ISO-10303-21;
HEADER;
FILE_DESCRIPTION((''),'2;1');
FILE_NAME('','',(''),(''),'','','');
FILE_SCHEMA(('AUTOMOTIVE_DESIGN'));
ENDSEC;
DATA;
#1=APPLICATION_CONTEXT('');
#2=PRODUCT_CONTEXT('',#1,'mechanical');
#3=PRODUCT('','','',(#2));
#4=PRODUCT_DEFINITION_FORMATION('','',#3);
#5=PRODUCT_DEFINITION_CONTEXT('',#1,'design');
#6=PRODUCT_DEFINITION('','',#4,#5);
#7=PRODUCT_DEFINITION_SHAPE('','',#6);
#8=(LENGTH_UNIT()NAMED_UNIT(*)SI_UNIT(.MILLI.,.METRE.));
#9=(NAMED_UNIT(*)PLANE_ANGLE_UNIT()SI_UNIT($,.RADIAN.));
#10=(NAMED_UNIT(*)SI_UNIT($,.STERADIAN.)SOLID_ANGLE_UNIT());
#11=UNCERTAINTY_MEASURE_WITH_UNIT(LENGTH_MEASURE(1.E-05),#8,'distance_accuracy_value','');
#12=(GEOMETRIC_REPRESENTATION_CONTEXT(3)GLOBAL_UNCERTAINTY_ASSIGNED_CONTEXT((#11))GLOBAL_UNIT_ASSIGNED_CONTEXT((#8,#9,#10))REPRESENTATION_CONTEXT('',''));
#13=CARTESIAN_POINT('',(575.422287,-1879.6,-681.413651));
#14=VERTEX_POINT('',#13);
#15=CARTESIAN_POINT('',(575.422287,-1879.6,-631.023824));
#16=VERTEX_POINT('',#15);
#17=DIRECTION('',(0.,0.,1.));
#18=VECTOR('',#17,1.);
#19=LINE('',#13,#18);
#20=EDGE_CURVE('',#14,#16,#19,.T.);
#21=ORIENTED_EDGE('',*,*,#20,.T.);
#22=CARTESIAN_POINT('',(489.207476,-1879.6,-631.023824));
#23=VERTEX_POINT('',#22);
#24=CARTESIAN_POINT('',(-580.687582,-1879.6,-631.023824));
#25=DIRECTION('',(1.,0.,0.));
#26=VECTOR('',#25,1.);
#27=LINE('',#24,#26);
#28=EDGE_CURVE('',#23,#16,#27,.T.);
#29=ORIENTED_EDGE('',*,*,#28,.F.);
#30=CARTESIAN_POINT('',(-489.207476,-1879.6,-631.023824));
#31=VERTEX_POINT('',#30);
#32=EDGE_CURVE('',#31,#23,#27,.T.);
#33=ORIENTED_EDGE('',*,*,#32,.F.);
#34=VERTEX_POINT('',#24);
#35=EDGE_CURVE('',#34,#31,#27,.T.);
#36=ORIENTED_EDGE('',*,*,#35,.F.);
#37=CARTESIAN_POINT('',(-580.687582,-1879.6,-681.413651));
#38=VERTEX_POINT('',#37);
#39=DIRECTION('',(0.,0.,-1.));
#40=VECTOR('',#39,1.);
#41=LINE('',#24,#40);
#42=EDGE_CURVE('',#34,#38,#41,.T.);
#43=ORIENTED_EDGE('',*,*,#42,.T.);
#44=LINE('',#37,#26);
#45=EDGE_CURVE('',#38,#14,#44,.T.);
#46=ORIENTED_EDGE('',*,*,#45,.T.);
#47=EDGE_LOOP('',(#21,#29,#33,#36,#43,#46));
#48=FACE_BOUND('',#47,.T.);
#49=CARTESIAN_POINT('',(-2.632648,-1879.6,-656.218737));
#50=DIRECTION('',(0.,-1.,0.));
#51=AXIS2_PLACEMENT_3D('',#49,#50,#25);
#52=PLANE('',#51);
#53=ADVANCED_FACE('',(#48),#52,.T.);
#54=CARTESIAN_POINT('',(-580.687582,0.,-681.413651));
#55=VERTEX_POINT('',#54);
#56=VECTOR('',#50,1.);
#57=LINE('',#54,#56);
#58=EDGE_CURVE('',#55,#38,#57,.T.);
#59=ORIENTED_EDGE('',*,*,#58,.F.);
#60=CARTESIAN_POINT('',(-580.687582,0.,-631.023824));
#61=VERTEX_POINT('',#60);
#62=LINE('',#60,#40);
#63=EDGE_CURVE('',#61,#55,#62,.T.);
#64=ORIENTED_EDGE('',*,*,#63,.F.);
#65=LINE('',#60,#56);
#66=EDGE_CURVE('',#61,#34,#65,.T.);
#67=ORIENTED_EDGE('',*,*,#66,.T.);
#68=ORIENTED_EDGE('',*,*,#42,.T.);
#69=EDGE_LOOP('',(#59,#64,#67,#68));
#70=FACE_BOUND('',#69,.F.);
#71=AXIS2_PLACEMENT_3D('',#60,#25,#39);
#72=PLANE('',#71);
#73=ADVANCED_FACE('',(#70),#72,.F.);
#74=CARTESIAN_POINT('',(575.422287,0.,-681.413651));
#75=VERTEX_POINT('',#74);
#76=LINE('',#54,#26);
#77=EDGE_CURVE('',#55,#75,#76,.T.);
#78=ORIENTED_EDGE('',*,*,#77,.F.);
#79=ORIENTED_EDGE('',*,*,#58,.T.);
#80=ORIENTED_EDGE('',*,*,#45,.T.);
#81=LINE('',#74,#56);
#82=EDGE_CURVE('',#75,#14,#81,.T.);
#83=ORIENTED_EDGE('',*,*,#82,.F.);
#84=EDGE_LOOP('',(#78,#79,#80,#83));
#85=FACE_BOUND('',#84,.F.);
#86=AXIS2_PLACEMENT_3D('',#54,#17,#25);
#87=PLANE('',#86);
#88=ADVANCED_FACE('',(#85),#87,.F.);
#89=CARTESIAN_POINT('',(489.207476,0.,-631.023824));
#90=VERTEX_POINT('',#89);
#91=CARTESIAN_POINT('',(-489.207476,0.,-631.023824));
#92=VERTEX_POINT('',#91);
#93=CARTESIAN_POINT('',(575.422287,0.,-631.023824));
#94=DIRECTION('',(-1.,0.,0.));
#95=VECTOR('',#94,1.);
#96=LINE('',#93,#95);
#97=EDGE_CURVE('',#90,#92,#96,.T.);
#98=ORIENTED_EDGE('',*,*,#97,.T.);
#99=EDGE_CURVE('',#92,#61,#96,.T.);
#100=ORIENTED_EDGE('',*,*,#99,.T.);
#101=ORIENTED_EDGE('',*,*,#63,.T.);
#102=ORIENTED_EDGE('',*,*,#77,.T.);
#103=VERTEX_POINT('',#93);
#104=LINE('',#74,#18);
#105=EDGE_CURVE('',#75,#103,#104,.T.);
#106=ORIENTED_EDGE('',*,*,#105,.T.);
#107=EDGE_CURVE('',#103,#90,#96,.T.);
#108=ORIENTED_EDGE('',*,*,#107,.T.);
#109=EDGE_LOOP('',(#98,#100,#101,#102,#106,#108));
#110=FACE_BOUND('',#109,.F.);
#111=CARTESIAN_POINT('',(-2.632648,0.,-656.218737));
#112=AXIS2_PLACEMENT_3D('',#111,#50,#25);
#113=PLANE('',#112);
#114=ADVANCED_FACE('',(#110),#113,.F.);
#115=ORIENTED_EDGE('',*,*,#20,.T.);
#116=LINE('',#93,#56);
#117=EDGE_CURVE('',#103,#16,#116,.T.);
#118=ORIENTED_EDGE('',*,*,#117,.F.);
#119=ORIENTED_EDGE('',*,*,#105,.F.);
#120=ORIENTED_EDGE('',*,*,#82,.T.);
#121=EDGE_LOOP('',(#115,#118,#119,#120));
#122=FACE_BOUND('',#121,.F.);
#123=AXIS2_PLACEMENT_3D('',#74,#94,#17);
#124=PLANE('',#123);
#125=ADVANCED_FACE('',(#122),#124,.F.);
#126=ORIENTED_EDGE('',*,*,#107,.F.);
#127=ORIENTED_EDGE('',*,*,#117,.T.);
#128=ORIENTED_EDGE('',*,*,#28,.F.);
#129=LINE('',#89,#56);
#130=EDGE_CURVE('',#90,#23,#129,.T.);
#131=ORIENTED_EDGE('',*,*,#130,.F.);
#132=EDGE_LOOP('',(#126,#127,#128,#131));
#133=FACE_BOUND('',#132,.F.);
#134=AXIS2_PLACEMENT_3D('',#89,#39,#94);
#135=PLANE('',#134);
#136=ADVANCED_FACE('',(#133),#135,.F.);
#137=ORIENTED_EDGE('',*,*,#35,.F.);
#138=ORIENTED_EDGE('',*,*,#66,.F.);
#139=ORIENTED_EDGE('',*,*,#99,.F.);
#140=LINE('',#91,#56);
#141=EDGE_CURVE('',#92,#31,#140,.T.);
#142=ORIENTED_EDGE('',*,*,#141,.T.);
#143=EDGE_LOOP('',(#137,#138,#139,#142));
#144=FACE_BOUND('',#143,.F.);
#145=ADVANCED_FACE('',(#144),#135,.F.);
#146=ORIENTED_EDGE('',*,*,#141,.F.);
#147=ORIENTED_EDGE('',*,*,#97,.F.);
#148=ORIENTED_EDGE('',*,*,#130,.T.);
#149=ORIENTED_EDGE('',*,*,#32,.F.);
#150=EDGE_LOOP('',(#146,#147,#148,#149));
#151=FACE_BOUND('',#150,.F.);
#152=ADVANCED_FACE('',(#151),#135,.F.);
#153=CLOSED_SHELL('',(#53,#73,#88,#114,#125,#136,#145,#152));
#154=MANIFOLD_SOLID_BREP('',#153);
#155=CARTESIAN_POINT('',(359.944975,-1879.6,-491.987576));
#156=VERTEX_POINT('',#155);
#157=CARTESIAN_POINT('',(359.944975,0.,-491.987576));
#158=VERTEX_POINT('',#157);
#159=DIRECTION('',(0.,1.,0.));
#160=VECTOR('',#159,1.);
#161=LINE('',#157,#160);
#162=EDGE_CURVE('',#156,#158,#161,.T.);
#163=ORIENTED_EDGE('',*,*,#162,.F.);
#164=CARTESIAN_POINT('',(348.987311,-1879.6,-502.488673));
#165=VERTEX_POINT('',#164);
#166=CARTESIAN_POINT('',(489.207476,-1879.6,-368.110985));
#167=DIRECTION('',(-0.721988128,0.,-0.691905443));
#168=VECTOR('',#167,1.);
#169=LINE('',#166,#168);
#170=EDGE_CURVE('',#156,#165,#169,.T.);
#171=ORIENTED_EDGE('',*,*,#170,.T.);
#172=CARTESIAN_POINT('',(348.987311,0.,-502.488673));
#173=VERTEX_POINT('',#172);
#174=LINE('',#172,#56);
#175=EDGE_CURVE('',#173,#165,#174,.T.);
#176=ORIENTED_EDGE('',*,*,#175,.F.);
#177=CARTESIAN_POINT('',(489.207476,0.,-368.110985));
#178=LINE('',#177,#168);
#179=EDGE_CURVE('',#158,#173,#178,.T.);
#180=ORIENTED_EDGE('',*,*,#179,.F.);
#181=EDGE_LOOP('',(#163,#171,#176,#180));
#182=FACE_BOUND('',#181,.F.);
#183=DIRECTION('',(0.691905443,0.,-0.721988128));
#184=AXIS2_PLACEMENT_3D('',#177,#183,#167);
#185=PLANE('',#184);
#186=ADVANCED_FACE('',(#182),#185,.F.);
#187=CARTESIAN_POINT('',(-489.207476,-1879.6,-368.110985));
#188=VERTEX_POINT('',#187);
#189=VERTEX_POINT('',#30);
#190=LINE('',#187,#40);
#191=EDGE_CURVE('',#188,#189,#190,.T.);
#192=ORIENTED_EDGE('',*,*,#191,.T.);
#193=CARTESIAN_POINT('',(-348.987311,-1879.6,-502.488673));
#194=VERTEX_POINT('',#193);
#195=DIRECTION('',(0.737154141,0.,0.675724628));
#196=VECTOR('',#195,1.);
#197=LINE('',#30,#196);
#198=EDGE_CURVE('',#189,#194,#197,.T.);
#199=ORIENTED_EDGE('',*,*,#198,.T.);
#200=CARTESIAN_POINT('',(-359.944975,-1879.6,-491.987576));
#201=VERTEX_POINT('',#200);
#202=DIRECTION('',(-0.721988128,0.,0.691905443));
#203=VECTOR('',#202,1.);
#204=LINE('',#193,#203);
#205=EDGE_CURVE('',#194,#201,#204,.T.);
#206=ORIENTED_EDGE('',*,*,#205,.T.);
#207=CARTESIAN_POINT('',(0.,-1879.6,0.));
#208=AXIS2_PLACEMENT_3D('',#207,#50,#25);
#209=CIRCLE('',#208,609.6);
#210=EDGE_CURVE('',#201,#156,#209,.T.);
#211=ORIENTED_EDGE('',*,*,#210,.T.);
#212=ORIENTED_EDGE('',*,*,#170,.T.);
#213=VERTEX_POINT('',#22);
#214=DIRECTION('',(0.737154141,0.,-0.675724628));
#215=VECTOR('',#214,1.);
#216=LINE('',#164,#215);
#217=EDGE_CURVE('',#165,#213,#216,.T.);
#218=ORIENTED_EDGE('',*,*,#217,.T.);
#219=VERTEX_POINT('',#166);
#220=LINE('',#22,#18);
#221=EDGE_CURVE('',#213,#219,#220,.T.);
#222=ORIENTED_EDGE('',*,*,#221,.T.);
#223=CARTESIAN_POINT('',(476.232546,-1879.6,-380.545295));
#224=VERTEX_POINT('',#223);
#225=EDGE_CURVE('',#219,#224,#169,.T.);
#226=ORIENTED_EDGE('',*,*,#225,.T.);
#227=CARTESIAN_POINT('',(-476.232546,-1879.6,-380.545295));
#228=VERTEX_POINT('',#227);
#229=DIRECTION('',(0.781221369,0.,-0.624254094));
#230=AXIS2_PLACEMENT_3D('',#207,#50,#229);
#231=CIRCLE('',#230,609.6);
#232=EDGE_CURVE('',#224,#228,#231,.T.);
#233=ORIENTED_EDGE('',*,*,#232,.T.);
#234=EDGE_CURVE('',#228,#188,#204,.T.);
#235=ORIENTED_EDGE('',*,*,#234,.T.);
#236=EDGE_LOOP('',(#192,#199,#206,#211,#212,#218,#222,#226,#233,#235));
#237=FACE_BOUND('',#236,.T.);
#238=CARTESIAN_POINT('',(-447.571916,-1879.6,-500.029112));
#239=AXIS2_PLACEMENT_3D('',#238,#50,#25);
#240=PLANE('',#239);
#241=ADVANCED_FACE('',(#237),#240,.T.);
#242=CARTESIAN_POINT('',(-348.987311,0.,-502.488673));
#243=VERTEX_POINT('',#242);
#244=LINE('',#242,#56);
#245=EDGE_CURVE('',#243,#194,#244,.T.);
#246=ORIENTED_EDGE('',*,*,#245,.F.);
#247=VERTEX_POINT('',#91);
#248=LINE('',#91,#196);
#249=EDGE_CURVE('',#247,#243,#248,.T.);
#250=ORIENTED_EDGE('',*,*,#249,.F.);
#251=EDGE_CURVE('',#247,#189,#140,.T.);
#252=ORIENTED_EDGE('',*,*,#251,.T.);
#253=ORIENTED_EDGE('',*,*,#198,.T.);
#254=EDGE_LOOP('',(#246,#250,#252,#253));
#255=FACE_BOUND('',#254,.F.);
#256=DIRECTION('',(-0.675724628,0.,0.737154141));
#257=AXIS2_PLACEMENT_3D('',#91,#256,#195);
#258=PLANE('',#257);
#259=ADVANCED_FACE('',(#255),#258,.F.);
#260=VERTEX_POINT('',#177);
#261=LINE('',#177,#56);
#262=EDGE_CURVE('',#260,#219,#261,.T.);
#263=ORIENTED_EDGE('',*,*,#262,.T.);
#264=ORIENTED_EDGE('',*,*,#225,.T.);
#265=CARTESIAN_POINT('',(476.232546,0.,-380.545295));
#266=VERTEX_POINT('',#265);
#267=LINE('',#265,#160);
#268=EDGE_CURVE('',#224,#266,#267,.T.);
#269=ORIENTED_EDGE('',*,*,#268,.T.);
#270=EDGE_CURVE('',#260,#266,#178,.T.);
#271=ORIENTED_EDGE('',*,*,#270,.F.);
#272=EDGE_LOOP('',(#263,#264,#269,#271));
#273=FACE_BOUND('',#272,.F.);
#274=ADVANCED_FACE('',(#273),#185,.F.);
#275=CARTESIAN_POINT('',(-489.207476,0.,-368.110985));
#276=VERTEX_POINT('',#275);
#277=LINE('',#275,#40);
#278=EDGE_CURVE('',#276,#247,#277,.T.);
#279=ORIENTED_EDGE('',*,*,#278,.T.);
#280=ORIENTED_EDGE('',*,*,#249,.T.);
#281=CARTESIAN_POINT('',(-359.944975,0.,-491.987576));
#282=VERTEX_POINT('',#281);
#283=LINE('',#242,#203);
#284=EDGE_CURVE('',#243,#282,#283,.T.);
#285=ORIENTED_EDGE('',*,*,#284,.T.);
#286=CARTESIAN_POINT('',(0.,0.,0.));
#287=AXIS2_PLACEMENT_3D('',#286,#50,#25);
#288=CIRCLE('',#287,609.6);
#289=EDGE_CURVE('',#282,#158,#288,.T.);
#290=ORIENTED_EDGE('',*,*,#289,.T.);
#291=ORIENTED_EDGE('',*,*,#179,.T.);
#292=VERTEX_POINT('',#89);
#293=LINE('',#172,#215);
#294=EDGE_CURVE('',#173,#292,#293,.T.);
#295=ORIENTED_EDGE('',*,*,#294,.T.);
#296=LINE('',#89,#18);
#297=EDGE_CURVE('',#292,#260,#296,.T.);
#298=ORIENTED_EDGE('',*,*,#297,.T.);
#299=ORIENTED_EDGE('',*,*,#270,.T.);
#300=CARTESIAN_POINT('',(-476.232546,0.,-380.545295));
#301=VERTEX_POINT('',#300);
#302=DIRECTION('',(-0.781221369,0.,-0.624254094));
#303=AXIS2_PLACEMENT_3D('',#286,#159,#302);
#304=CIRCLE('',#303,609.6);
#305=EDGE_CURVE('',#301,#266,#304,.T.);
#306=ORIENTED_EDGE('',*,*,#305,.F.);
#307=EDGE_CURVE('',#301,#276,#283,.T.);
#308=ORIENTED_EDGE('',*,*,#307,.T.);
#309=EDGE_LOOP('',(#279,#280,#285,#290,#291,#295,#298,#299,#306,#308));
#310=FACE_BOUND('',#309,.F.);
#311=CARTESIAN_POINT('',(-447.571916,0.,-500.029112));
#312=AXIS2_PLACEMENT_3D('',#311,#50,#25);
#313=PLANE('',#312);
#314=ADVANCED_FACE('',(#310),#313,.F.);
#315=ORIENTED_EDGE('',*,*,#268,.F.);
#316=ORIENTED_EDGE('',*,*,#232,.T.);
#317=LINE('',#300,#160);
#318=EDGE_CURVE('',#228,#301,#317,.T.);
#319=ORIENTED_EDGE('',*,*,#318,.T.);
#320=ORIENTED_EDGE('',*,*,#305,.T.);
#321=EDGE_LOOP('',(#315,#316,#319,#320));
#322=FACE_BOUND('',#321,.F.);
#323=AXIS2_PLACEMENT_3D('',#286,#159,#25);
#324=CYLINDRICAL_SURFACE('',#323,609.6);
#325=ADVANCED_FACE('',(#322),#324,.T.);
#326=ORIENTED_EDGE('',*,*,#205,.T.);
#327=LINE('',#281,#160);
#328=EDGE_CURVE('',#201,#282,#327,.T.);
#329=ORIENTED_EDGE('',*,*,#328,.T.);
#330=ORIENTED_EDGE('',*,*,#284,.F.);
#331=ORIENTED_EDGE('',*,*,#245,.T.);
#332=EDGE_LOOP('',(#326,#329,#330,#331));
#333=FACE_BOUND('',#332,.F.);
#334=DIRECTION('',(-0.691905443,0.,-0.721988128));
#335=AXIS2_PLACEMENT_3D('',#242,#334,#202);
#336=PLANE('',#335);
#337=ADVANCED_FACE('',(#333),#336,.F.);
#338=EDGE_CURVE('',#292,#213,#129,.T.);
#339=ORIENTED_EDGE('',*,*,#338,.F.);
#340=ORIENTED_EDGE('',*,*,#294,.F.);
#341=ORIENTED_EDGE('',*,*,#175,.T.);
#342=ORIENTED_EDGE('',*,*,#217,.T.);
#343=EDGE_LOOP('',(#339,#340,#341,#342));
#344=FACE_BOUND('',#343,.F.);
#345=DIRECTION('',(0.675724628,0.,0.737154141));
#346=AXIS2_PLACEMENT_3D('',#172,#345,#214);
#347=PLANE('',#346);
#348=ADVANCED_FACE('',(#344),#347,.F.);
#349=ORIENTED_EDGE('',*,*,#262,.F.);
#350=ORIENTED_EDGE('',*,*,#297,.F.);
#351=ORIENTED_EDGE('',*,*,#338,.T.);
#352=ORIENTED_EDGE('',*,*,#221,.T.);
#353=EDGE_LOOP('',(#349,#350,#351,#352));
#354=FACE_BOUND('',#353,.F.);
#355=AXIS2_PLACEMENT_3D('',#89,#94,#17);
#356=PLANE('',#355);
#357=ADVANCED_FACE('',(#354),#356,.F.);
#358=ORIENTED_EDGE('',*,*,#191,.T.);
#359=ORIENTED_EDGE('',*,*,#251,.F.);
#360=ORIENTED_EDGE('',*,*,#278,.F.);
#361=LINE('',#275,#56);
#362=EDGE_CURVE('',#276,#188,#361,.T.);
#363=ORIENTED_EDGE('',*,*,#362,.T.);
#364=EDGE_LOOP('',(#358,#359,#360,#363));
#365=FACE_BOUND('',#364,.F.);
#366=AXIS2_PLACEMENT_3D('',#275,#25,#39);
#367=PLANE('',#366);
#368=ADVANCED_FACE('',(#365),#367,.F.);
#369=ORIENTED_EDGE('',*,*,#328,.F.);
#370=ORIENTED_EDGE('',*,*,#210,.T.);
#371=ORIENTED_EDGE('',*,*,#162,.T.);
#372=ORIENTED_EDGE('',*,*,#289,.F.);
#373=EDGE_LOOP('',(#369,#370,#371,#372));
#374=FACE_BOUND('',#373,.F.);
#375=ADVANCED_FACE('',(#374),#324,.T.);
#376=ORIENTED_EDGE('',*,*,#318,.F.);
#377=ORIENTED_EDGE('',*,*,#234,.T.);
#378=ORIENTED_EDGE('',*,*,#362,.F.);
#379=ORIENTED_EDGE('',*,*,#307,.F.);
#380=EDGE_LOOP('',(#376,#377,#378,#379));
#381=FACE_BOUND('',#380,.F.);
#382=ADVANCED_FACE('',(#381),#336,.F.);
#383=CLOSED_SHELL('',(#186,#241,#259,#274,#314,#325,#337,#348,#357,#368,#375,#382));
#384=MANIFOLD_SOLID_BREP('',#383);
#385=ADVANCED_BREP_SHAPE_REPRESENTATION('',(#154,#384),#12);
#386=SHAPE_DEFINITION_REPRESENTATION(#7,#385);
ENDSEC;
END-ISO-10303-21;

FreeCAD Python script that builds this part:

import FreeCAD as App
import Part
import Sketcher

V = App.Vector
Q = App.Units.Quantity

doc = App.newDocument("Part")
body = doc.addObject("PartDesign::Body", "Body")
body.AllowCompound = True

sketch1 = body.newObject("Sketcher::SketchObject", "Sketch")
sketch1.AttachmentSupport = (doc.getObject("XZ_Plane"), [""])
sketch1.MapMode = "FlatFace"
sketch1.addGeometry(Part.Circle(V(0, 0, 0), V(0, 0, 1), 609.6), False)
sketch1.addConstraint([
    Sketcher.Constraint("Coincident", 0, 3, -1, 1),
    Sketcher.Constraint("Diameter", 0, Q("48 in")),
])
pad1 = body.newObject("PartDesign::Pad", "Pad")
pad1.Profile = sketch1
pad1.Length = Q("74 in")

sketch2 = body.newObject("Sketcher::SketchObject", "Sketch001")
sketch2.AttachmentSupport = (doc.getObject("XZ_Plane"), [""])
sketch2.MapMode = "FlatFace"
sketch2.addGeometry([
    Part.LineSegment(V(-348.987311, -502.488673, 0), V(-489.207476, -368.110985, 0)),
    Part.LineSegment(V(-489.207476, -368.110985, 0), V(-489.207476, -631.023824, 0)),
    Part.LineSegment(V(-489.207476, -631.023824, 0), V(-348.987311, -502.488673, 0)),
    Part.LineSegment(V(348.987311, -502.488673, 0), V(489.207476, -631.023824, 0)),
    Part.LineSegment(V(489.207476, -631.023824, 0), V(489.207476, -368.110985, 0)),
    Part.LineSegment(V(489.207476, -368.110985, 0), V(348.987311, -502.488673, 0)),
    Part.LineSegment(V(489.207476, -631.023824, 0), V(-489.207476, -631.023824, 0)),
    Part.LineSegment(V(-489.207476, -631.023824, 0), V(-580.687582, -631.023824, 0)),
    Part.LineSegment(V(-580.687582, -631.023824, 0), V(-580.687582, -681.413651, 0)),
    Part.LineSegment(V(-580.687582, -681.413651, 0), V(575.422287, -681.413651, 0)),
    Part.LineSegment(V(575.422287, -681.413651, 0), V(575.422287, -631.023824, 0)),
    Part.LineSegment(V(575.422287, -631.023824, 0), V(489.207476, -631.023824, 0)),
], False)
sketch2.addConstraint([
    Sketcher.Constraint("Coincident", 0, 2, 1, 1),
    Sketcher.Constraint("Coincident", 1, 2, 2, 1),
    Sketcher.Constraint("Coincident", 2, 2, 0, 1),
    Sketcher.Constraint("Coincident", 3, 2, 4, 1),
    Sketcher.Constraint("Coincident", 4, 2, 5, 1),
    Sketcher.Constraint("Coincident", 5, 2, 3, 1),
    Sketcher.Constraint("Coincident", 6, 2, 7, 1),
    Sketcher.Constraint("Coincident", 7, 2, 8, 1),
    Sketcher.Constraint("Coincident", 8, 2, 9, 1),
    Sketcher.Constraint("Coincident", 9, 2, 10, 1),
    Sketcher.Constraint("Coincident", 10, 2, 11, 1),
    Sketcher.Constraint("Coincident", 11, 2, 6, 1),
    Sketcher.Constraint("Vertical", 1),
    Sketcher.Constraint("Vertical", 4),
    Sketcher.Constraint("Horizontal", 6),
    Sketcher.Constraint("Horizontal", 7),
    Sketcher.Constraint("Vertical", 8),
    Sketcher.Constraint("Horizontal", 9),
    Sketcher.Constraint("Vertical", 10),
    Sketcher.Constraint("Horizontal", 11),
    Sketcher.Constraint("Coincident", 6, 2, 1, 2),
    Sketcher.Constraint("Coincident", 11, 2, 3, 2),
    Sketcher.Constraint("Symmetric", 0, 2, 4, 2, -2),
    Sketcher.Constraint("Symmetric", 2, 2, 5, 2, -2),
    Sketcher.Constraint("DistanceX", 6, 2, 6, 1, Q("978.414952 mm")),
    Sketcher.Constraint("DistanceX", 9, 1, 9, 2, Q("1156.109869 mm")),
    Sketcher.Constraint("DistanceX", 11, 2, 11, 1, Q("86.214811 mm")),
    Sketcher.Constraint("DistanceY", 1, 2, 1, 1, Q("262.912839 mm")),
    Sketcher.Constraint("DistanceX", 2, 2, 9, 2, Q("924.409598 mm")),
    Sketcher.Constraint("Distance", 0, Q("194.213948 mm")),
    Sketcher.Constraint("DistanceY", 8, 2, 8, 1, Q("50.389827 mm")),
    Sketcher.Constraint("DistanceY", 8, 2, -1, 1, Q("681.413651 mm")),
])
pad2 = body.newObject("PartDesign::Pad", "Pad001")
pad2.Profile = sketch2
pad2.Length = Q("74 in")

doc.recompute()
